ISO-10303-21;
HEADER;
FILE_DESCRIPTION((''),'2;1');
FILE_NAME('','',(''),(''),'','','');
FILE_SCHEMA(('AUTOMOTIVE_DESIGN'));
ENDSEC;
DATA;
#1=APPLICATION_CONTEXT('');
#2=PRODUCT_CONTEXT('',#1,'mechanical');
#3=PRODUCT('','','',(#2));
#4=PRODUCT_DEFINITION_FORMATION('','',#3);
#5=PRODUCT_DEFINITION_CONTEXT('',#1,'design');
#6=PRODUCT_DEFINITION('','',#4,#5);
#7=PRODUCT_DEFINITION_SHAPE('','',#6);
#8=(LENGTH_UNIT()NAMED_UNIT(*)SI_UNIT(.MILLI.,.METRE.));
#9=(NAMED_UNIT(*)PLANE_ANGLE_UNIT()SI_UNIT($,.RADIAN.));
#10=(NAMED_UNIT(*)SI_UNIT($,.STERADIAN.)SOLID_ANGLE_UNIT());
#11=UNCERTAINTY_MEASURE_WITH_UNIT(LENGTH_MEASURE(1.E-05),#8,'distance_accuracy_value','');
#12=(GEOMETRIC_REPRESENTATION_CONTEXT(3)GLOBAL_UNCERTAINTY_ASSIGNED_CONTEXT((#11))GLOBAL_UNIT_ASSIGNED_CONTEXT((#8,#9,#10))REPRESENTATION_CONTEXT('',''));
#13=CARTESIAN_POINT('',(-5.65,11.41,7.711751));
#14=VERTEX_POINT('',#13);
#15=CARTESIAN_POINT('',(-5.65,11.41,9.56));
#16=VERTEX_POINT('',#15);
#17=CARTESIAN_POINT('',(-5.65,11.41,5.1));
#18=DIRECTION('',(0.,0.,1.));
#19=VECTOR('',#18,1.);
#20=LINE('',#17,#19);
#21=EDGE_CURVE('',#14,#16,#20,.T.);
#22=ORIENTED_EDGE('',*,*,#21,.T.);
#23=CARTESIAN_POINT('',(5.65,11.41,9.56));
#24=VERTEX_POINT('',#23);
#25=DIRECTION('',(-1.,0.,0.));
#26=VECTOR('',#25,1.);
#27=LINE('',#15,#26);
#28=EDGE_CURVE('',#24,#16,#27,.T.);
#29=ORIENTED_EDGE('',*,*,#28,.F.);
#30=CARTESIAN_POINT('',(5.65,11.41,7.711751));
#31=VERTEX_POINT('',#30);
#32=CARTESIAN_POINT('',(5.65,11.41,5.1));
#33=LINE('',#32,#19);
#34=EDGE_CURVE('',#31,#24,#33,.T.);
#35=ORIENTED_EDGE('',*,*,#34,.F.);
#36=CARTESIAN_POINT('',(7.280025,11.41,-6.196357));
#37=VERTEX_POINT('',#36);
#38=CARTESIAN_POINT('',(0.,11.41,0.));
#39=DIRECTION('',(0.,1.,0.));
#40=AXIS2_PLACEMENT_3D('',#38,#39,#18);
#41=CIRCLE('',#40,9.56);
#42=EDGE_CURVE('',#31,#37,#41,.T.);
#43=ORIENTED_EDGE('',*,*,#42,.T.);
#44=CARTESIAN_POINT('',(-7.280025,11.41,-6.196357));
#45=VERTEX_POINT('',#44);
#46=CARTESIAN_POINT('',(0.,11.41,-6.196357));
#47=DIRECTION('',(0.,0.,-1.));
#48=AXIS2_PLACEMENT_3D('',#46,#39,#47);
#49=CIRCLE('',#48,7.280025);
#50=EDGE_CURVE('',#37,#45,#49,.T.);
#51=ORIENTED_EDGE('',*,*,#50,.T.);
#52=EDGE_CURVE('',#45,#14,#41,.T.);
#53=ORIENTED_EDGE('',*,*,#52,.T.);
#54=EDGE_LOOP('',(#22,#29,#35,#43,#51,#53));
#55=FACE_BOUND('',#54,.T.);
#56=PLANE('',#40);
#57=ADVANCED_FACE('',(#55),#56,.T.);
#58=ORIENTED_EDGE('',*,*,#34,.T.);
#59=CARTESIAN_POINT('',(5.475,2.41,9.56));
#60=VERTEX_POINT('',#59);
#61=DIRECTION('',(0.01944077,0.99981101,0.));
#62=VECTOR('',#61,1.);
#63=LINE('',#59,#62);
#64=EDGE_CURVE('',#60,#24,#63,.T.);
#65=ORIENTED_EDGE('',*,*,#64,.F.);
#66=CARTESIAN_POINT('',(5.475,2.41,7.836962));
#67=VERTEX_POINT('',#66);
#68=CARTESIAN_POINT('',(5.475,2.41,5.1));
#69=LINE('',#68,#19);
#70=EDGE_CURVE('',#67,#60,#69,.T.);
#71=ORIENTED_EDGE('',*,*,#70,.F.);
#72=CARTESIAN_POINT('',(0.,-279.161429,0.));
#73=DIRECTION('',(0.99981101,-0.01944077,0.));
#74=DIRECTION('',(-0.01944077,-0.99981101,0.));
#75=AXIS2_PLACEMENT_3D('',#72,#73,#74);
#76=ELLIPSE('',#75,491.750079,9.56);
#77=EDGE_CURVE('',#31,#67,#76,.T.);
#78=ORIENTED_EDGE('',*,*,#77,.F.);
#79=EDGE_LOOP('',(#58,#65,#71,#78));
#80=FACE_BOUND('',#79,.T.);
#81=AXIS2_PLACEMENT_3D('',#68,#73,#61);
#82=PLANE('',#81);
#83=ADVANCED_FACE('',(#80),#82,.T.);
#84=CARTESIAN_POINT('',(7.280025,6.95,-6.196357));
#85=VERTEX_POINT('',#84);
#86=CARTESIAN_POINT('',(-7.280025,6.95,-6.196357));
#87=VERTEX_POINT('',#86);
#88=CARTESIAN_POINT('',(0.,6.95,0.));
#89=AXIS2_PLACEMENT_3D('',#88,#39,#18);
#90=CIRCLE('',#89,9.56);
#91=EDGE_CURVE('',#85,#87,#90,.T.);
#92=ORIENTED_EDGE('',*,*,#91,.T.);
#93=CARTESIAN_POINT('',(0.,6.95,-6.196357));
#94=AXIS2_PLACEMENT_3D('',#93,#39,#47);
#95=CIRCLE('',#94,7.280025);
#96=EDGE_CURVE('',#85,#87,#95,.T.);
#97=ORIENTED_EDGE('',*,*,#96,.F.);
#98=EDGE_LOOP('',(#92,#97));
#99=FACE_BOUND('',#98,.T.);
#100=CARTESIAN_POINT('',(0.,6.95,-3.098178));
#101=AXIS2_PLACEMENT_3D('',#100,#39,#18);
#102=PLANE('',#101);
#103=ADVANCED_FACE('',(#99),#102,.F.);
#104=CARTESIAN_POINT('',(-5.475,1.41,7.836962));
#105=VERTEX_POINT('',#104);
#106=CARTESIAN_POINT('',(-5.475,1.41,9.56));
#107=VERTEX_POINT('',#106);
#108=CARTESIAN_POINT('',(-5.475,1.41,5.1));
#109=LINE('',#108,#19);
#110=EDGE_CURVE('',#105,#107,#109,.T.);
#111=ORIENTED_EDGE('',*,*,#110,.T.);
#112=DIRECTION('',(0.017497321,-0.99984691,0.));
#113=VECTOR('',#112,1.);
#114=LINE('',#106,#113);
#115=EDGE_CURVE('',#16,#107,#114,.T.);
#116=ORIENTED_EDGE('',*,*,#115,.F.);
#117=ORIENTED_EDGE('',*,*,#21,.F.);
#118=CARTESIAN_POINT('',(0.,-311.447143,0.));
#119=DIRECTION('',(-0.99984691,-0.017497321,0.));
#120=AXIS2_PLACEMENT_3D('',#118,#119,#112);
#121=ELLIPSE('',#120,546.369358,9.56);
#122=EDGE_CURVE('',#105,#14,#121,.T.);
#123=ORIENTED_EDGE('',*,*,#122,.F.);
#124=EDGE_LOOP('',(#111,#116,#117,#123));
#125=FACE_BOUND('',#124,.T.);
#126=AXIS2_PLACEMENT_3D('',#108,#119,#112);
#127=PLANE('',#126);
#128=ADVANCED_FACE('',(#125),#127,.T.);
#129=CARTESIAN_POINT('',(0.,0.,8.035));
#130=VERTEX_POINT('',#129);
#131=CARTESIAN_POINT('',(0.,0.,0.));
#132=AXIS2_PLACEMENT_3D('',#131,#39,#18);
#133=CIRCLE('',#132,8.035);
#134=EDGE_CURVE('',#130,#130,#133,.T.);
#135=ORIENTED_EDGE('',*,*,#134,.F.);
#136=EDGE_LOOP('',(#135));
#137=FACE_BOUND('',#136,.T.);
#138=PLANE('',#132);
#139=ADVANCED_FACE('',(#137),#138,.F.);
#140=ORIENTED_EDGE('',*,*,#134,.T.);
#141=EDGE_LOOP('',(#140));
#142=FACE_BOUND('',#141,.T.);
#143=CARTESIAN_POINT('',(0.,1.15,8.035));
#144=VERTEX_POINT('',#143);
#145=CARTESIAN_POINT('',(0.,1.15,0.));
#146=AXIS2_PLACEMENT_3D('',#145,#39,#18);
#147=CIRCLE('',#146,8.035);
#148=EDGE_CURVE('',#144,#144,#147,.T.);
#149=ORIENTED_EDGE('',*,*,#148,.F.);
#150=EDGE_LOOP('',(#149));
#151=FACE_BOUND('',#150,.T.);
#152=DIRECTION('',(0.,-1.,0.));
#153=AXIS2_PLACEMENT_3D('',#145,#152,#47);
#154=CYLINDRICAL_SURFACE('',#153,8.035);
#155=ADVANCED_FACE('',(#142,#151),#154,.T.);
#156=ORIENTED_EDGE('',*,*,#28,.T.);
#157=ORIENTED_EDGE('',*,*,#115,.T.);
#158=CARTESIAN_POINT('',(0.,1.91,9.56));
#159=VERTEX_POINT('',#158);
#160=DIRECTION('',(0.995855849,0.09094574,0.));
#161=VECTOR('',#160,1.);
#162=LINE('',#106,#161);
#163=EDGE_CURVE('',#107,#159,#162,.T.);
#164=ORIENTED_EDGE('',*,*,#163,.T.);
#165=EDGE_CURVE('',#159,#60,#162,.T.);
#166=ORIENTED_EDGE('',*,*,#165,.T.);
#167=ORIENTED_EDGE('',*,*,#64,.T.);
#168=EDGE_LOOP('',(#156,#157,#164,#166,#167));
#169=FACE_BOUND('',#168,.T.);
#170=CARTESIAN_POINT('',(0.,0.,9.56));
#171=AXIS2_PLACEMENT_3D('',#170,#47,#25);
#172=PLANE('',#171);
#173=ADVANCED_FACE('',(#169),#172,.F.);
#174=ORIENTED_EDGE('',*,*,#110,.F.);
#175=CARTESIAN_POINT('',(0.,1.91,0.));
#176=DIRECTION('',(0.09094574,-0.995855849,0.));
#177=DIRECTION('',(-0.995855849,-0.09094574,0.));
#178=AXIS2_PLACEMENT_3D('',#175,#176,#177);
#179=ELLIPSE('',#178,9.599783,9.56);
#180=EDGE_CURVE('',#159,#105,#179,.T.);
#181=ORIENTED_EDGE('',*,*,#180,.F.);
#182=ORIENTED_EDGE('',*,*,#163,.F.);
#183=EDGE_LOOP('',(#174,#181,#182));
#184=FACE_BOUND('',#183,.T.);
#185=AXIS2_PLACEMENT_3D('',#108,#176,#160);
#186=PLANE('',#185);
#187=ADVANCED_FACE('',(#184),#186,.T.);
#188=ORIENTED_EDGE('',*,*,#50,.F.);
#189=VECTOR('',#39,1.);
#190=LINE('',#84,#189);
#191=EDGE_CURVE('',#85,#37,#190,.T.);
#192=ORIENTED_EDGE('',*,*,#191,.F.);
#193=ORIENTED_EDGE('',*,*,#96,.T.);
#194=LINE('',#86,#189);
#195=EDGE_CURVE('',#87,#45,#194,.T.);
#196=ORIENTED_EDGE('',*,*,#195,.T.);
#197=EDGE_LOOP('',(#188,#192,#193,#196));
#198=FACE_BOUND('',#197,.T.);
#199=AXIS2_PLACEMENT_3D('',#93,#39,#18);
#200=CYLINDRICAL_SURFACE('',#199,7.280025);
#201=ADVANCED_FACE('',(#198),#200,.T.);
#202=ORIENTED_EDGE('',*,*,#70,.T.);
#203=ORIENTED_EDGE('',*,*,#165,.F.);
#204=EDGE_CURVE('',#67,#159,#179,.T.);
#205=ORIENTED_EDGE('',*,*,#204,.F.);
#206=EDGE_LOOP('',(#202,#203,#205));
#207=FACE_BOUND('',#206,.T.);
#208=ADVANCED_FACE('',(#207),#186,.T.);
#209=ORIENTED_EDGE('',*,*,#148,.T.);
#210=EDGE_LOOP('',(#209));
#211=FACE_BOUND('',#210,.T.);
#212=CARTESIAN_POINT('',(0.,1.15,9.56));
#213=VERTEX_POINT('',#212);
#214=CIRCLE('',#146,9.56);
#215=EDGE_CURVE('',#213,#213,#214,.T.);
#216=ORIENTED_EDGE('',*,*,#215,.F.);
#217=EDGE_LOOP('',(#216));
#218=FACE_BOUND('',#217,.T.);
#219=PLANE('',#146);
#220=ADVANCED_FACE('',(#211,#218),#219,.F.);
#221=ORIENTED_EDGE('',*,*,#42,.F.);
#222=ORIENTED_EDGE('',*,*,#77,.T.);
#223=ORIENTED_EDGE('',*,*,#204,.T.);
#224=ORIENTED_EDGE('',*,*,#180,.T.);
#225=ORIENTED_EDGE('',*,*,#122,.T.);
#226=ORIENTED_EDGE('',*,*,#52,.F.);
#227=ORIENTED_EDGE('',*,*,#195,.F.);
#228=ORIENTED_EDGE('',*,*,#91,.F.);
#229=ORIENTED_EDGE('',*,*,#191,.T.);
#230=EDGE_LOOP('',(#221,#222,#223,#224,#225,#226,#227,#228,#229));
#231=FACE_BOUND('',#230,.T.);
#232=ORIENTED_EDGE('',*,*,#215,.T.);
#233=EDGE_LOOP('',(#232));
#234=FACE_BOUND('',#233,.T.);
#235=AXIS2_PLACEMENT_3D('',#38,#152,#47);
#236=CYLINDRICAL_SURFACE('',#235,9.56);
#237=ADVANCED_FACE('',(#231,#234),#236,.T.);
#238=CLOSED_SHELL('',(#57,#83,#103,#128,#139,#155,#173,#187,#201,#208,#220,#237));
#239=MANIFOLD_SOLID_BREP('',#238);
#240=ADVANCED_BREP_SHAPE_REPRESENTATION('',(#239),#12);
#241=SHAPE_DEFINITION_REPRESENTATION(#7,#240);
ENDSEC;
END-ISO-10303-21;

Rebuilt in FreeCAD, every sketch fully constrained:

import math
import FreeCAD as App
import Part
import Sketcher
from FreeCAD import Vector
Q = App.Units.Quantity

doc = App.newDocument("Part")
params = doc.addObject("Spreadsheet::Sheet", "Params")
for row, (alias, value) in enumerate([
    ("sketch1_diameter", "16.07 mm"),
    ("pad1_length", "1.15 mm"),
    ("sketch2_diameter", "19.12 mm"),
    ("pad2_length", "10.26 mm"),
    ("sketch3_radius", "9.56 mm"),
    ("pad3_length", "4.46 mm"),
    ("sketch4_width", "11.3 mm"),
    ("pad4_length", "4.46 mm"),
], start=1):
    params.set(f"A{row}", alias)
    params.set(f"B{row}", "=" + value)
    params.setAlias(f"B{row}", alias)

body = doc.addObject("PartDesign::Body", "Body")

# Sketch on XZ plane
sketch1 = doc.addObject("Sketcher::SketchObject", "Sketch")
body.addObject(sketch1)
sketch1.AttachmentSupport = (doc.XZ_Plane, [""])
sketch1.MapMode = "FlatFace"
sketch1.addGeometry(Part.Circle(Vector(0, 0, 0), Vector(0, 0, 1), 8), False)
sketch1.addConstraint([
    Sketcher.Constraint("Coincident", 0, 3, -1, 1),
    Sketcher.Constraint("Diameter", 0, Q("16.07 mm")),
])
sketch1.setExpression("Constraints[1]", "Params.sketch1_diameter")
pad1 = doc.addObject("PartDesign::Pad", "Pad")
body.addObject(pad1)
pad1.Profile = sketch1
pad1.setExpression("Length", "Params.pad1_length")
pad1.Reversed = True

# Sketch on XZ plane
sketch2 = doc.addObject("Sketcher::SketchObject", "Sketch001")
body.addObject(sketch2)
sketch2.AttachmentSupport = (doc.XZ_Plane, [""])
sketch2.MapMode = "FlatFace"
sketch2.AttachmentOffset = App.Placement(Vector(0, 0, -1.15), App.Rotation())
sketch2.addGeometry(Part.Circle(Vector(0, 0, 0), Vector(0, 0, 1), 10), False)
sketch2.addConstraint([
    Sketcher.Constraint("Coincident", 0, 3, -1, 1),
    Sketcher.Constraint("Diameter", 0, Q("19.12 mm")),
])
sketch2.setExpression("Constraints[1]", "Params.sketch2_diameter")
pad2 = doc.addObject("PartDesign::Pad", "Pad001")
body.addObject(pad2)
pad2.Profile = sketch2
pad2.setExpression("Length", "Params.pad2_length")
pad2.Reversed = True

# Sketch on XZ plane
sketch3 = doc.addObject("Sketcher::SketchObject", "Sketch002")
body.addObject(sketch3)
sketch3.AttachmentSupport = (doc.XZ_Plane, [""])
sketch3.MapMode = "FlatFace"
sketch3.AttachmentOffset = App.Placement(Vector(0, 0, -6.95), App.Rotation())
sketch3.addGeometry([
    Part.ArcOfCircle(Part.Circle(Vector(0, -6, 0), Vector(0, 0, 1), 7), math.radians(-180), math.radians(0)),
    Part.ArcOfCircle(Part.Circle(Vector(0, 0, 0), Vector(0, 0, 1), 10), math.radians(-40), math.radians(220)),
], False)
sketch3.addConstraint([
    Sketcher.Constraint("Coincident", 0, 1, 1, 2),
    Sketcher.Constraint("Coincident", 1, 1, 0, 2),
    Sketcher.Constraint("Coincident", 1, 3, -1, 1),
    Sketcher.Constraint("PointOnObject", 0, 3, -2),
    Sketcher.Constraint("Radius", 1, Q("9.56 mm")),
    Sketcher.Constraint("Radius", 0, Q("7.280025 mm")),
    Sketcher.Constraint("DistanceY", 0, 3, -1, 1, Q("6.196357 mm")),
])
sketch3.setExpression("Constraints[4]", "Params.sketch3_radius")
pad3 = doc.addObject("PartDesign::Pad", "Pad002")
body.addObject(pad3)
pad3.Profile = sketch3
pad3.setExpression("Length", "Params.pad3_length")
pad3.Reversed = True

# Sketch on XY plane
sketch4 = doc.addObject("Sketcher::SketchObject", "Sketch003")
body.addObject(sketch4)
sketch4.AttachmentSupport = (doc.XY_Plane, [""])
sketch4.MapMode = "FlatFace"
sketch4.AttachmentOffset = App.Placement(Vector(0, 0, 9.56), App.Rotation())
sketch4.addGeometry([
    Part.LineSegment(Vector(-5, 1, 0), Vector(5, 2, 0)),
    Part.LineSegment(Vector(5, 2, 0), Vector(6, 11, 0)),
    Part.LineSegment(Vector(6, 11, 0), Vector(-6, 11, 0)),
    Part.LineSegment(Vector(-6, 11, 0), Vector(-5, 1, 0)),
], False)
sketch4.addConstraint([
    Sketcher.Constraint("Coincident", 0, 2, 1, 1),
    Sketcher.Constraint("Coincident", 1, 2, 2, 1),
    Sketcher.Constraint("Coincident", 2, 2, 3, 1),
    Sketcher.Constraint("Coincident", 3, 2, 0, 1),
    Sketcher.Constraint("Horizontal", 2),
    Sketcher.Constraint("DistanceX", 2, 2, 2, 1, Q("11.3 mm")),
    Sketcher.Constraint("DistanceY", 0, 2, 1, 2, Q("9 mm")),
    Sketcher.Constraint("DistanceY", 3, 2, 2, 2, Q("10 mm")),
    Sketcher.Constraint("DistanceY", -1, 1, 0, 2, Q("2.41 mm")),
    Sketcher.Constraint("DistanceX", -1, 1, 1, 2, Q("5.65 mm")),
    Sketcher.Constraint("DistanceX", 3, 2, 0, 2, Q("10.95 mm")),
    Sketcher.Constraint("DistanceX", -1, 1, 0, 2, Q("5.475 mm")),
])
sketch4.setExpression("Constraints[5]", "Params.sketch4_width")
pad4 = doc.addObject("PartDesign::Pad", "Pad003")
body.addObject(pad4)
pad4.Profile = sketch4
pad4.setExpression("Length", "Params.pad4_length")
pad4.Reversed = True

doc.recompute()
